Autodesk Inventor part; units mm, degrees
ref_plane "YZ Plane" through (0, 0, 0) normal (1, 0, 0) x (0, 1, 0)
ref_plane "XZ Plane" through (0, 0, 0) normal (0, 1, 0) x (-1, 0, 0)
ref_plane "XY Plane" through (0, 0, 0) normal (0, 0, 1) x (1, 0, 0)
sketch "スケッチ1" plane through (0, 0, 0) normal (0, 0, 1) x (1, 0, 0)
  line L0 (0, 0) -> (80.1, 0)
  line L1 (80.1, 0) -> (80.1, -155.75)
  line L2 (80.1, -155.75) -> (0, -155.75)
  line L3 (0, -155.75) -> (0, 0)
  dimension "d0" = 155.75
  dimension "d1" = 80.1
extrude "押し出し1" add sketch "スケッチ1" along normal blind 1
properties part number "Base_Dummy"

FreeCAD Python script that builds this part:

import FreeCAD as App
import Part
import Sketcher
Q = App.Units.Quantity

doc = App.newDocument("Part")
params = doc.addObject("Spreadsheet::Sheet", "Params")
for row, (alias, value) in enumerate([
    ("sketch1_width", "80.1 mm"),
    ("sketch1_height", "155.75 mm"),
    ("pad1_length", "1 mm"),
], start=1):
    params.set(f"A{row}", alias)
    params.set(f"B{row}", "=" + value)
    params.setAlias(f"B{row}", alias)

body = doc.addObject("PartDesign::Body", "Body")

# Sketch on XY plane
sketch1 = doc.addObject("Sketcher::SketchObject", "Sketch")
body.addObject(sketch1)
sketch1.AttachmentSupport = (doc.XY_Plane, [""])
sketch1.MapMode = "FlatFace"
sketch1.addGeometry([
    Part.LineSegment(App.Vector(80, 0, 0), App.Vector(0, 0, 0)),
    Part.LineSegment(App.Vector(0, 0, 0), App.Vector(0, -156, 0)),
    Part.LineSegment(App.Vector(0, -156, 0), App.Vector(80, -156, 0)),
    Part.LineSegment(App.Vector(80, -156, 0), App.Vector(80, 0, 0)),
], False)
sketch1.addConstraint([
    Sketcher.Constraint("Coincident", 0, 2, 1, 1),
    Sketcher.Constraint("Coincident", 1, 2, 2, 1),
    Sketcher.Constraint("Coincident", 2, 2, 3, 1),
    Sketcher.Constraint("Coincident", 3, 2, 0, 1),
    Sketcher.Constraint("Horizontal", 0),
    Sketcher.Constraint("Vertical", 1),
    Sketcher.Constraint("Horizontal", 2),
    Sketcher.Constraint("Vertical", 3),
    Sketcher.Constraint("Coincident", 0, 2, -1, 1),
    Sketcher.Constraint("DistanceX", 0, 2, 0, 1, Q("80.1 mm")),
    Sketcher.Constraint("DistanceY", 1, 2, 1, 1, Q("155.75 mm")),
])
sketch1.setExpression("Constraints[9]", "Params.sketch1_width")
sketch1.setExpression("Constraints[10]", "Params.sketch1_height")
pad1 = doc.addObject("PartDesign::Pad", "Pad")
body.addObject(pad1)
pad1.Profile = sketch1
pad1.setExpression("Length", "Params.pad1_length")

doc.recompute()
